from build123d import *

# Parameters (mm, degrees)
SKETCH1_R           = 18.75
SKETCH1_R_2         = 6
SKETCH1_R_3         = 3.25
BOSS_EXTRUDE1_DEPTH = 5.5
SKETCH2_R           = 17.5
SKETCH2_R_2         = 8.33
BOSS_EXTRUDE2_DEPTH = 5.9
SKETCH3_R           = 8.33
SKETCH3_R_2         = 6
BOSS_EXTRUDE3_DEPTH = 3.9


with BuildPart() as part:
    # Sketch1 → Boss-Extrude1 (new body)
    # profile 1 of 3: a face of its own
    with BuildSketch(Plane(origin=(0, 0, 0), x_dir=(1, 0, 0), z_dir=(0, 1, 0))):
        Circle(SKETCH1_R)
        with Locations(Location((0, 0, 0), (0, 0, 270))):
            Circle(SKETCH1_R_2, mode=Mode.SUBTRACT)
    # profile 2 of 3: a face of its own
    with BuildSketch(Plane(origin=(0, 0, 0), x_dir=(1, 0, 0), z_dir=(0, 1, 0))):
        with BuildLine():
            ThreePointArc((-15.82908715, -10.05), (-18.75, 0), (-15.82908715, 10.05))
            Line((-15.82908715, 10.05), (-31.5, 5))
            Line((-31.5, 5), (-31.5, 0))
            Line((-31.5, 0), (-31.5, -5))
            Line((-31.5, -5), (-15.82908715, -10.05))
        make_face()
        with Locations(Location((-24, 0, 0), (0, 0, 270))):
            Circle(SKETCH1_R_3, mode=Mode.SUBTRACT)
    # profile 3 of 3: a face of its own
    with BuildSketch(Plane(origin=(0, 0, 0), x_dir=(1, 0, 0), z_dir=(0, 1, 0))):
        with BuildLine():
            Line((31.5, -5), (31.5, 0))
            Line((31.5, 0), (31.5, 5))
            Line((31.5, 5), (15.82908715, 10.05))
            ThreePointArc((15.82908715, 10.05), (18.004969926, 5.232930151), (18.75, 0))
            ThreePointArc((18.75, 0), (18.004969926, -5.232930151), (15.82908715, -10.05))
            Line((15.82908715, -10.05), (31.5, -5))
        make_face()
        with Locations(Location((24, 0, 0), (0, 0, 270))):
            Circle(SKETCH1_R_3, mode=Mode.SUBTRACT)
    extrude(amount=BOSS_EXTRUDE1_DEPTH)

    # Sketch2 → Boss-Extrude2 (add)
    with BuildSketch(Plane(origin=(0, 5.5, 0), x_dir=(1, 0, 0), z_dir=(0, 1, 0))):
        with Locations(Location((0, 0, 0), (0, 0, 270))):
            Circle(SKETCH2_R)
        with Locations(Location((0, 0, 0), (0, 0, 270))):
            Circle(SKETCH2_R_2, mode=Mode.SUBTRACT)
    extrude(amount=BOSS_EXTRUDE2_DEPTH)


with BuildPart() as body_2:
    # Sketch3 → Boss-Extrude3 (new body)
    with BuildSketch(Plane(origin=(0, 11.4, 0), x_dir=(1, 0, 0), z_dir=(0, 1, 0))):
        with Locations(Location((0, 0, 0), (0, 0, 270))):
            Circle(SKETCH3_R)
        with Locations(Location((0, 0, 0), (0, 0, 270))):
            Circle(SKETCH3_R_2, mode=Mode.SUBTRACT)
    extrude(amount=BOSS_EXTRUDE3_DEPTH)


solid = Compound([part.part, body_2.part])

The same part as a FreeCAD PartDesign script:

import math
import FreeCAD as App
import Part
import Sketcher
from FreeCAD import Vector

doc = App.newDocument("Part")
body = doc.addObject("PartDesign::Body", "Body")

sketch1 = body.newObject("Sketcher::SketchObject", "Sketch")
sketch1.AttachmentSupport = (doc.getObject("XZ_Plane"), [""])
sketch1.MapMode = "FlatFace"
sketch1.addGeometry(Part.ArcOfCircle(Part.Circle(Vector(0, 0, 0), Vector(0, 0, 1), 18.8), math.radians(-148), math.radians(-32)), False)
sketch1.addGeometry(Part.LineSegment(Vector(-15.8, -10.1, 0), Vector(-31.5, -5, 0)), False)
sketch1.addGeometry(Part.LineSegment(Vector(-31.5, -5, 0), Vector(-31.5, 5, 0)), False)
sketch1.addGeometry(Part.LineSegment(Vector(-31.5, 5, 0), Vector(-15.8, 10.1, 0)), False)
sketch1.addGeometry(Part.ArcOfCircle(Part.Circle(Vector(0, 0, 0), Vector(0, 0, 1), 18.8), math.radians(32), math.radians(148)), False)
sketch1.addGeometry(Part.LineSegment(Vector(15.8, 10.1, 0), Vector(31.5, 5, 0)), False)
sketch1.addGeometry(Part.LineSegment(Vector(31.5, 5, 0), Vector(31.5, -5, 0)), False)
sketch1.addGeometry(Part.LineSegment(Vector(31.5, -5, 0), Vector(15.8, -10.1, 0)), False)
sketch1.addGeometry(Part.Circle(Vector(0, 0, 0), Vector(0, 0, 1), 6), False)
sketch1.addGeometry(Part.Circle(Vector(24, 0, 0), Vector(0, 0, 1), 3.2), False)
sketch1.addGeometry(Part.Circle(Vector(-24, 0, 0), Vector(0, 0, 1), 3.2), False)
sketch1.addConstraint(Sketcher.Constraint("Coincident", 0, 1, 1, 1))
sketch1.addConstraint(Sketcher.Constraint("Coincident", 1, 2, 2, 1))
sketch1.addConstraint(Sketcher.Constraint("Coincident", 2, 2, 3, 1))
sketch1.addConstraint(Sketcher.Constraint("Coincident", 3, 2, 4, 2))
sketch1.addConstraint(Sketcher.Constraint("Coincident", 4, 1, 5, 1))
sketch1.addConstraint(Sketcher.Constraint("Coincident", 5, 2, 6, 1))
sketch1.addConstraint(Sketcher.Constraint("Coincident", 6, 2, 7, 1))
sketch1.addConstraint(Sketcher.Constraint("Coincident", 7, 2, 0, 2))
sketch1.addConstraint(Sketcher.Constraint("Vertical", 2))
sketch1.addConstraint(Sketcher.Constraint("Vertical", 6))
sketch1.addConstraint(Sketcher.Constraint("Coincident", 0, 3, -1, 1))
sketch1.addConstraint(Sketcher.Constraint("Coincident", 4, 3, -1, 1))
sketch1.addConstraint(Sketcher.Constraint("Coincident", 8, 3, -1, 1))
sketch1.addConstraint(Sketcher.Constraint("Equal", 0, 4))
sketch1.addConstraint(Sketcher.Constraint("Equal", 9, 10))
sketch1.addConstraint(Sketcher.Constraint("Symmetric", 9, 3, 10, 3, -1, 1))
sketch1.addConstraint(Sketcher.Constraint("Symmetric", 1, 2, 5, 2, -1, 1))
sketch1.addConstraint(Sketcher.Constraint("PointOnObject", 9, 3, -1))
sketch1.addConstraint(Sketcher.Constraint("Parallel", 1, 5))
sketch1.addConstraint(Sketcher.Constraint("Parallel", 3, 7))
sketch1.addConstraint(Sketcher.Constraint("Horizontal", 3, 2, 4, 1))
sketch1.addConstraint(Sketcher.Constraint("Horizontal", 2, 2, 5, 2))
sketch1.addConstraint(Sketcher.Constraint("Horizontal", 1, 2, 6, 2))
sketch1.addConstraint(Sketcher.Constraint("Diameter", 8, 12.0))
sketch1.addConstraint(Sketcher.Constraint("Diameter", 9, 6.5))
sketch1.addConstraint(Sketcher.Constraint("DistanceY", 2, 1, 2, 2, 10.0))
sketch1.addConstraint(Sketcher.Constraint("Radius", 0, 18.75))
sketch1.addConstraint(Sketcher.Constraint("DistanceX", -1, 1, 9, 3, 24.0))
sketch1.addConstraint(Sketcher.Constraint("DistanceX", 1, 2, -1, 1, 31.5))
sketch1.addConstraint(Sketcher.Constraint("DistanceY", 0, 1, -1, 1, 10.05))
pad1 = body.newObject("PartDesign::Pad", "Pad")
pad1.Profile = sketch1
pad1.Length = 5.5
pad1.Reversed = True

sketch2 = body.newObject("Sketcher::SketchObject", "Sketch001")
sketch2.AttachmentSupport = (doc.getObject("XZ_Plane"), [""])
sketch2.MapMode = "FlatFace"
sketch2.AttachmentOffset = App.Placement(Vector(0, 0, -5.5), App.Rotation())
sketch2.addGeometry(Part.Circle(Vector(0, 0, 0), Vector(0, 0, 1), 18), False)
sketch2.addGeometry(Part.Circle(Vector(0, 0, 0), Vector(0, 0, 1), 8), False)
sketch2.addConstraint(Sketcher.Constraint("Coincident", 0, 3, -1, 1))
sketch2.addConstraint(Sketcher.Constraint("Coincident", 1, 3, -1, 1))
sketch2.addConstraint(Sketcher.Constraint("Diameter", 0, 35.0))
sketch2.addConstraint(Sketcher.Constraint("Diameter", 1, 16.66))
pad2 = body.newObject("PartDesign::Pad", "Pad001")
pad2.Profile = sketch2
pad2.Length = 5.9
pad2.Reversed = True
body2 = doc.addObject("PartDesign::Body", "Body001")

sketch3 = body2.newObject("Sketcher::SketchObject", "Sketch002")
sketch3.AttachmentSupport = (doc.getObject("XZ_Plane001"), [""])
sketch3.MapMode = "FlatFace"
sketch3.AttachmentOffset = App.Placement(Vector(0, 0, -11.4), App.Rotation())
sketch3.addGeometry(Part.Circle(Vector(0, 0, 0), Vector(0, 0, 1), 8), False)
sketch3.addGeometry(Part.Circle(Vector(0, 0, 0), Vector(0, 0, 1), 6), False)
sketch3.addConstraint(Sketcher.Constraint("Coincident", 0, 3, -1, 1))
sketch3.addConstraint(Sketcher.Constraint("Coincident", 1, 3, -1, 1))
sketch3.addConstraint(Sketcher.Constraint("Diameter", 1, 12.0))
sketch3.addConstraint(Sketcher.Constraint("Diameter", 0, 16.66))
pad3 = body2.newObject("PartDesign::Pad", "Pad002")
pad3.Profile = sketch3
pad3.Length = 3.9
pad3.Reversed = True

doc.recompute()
